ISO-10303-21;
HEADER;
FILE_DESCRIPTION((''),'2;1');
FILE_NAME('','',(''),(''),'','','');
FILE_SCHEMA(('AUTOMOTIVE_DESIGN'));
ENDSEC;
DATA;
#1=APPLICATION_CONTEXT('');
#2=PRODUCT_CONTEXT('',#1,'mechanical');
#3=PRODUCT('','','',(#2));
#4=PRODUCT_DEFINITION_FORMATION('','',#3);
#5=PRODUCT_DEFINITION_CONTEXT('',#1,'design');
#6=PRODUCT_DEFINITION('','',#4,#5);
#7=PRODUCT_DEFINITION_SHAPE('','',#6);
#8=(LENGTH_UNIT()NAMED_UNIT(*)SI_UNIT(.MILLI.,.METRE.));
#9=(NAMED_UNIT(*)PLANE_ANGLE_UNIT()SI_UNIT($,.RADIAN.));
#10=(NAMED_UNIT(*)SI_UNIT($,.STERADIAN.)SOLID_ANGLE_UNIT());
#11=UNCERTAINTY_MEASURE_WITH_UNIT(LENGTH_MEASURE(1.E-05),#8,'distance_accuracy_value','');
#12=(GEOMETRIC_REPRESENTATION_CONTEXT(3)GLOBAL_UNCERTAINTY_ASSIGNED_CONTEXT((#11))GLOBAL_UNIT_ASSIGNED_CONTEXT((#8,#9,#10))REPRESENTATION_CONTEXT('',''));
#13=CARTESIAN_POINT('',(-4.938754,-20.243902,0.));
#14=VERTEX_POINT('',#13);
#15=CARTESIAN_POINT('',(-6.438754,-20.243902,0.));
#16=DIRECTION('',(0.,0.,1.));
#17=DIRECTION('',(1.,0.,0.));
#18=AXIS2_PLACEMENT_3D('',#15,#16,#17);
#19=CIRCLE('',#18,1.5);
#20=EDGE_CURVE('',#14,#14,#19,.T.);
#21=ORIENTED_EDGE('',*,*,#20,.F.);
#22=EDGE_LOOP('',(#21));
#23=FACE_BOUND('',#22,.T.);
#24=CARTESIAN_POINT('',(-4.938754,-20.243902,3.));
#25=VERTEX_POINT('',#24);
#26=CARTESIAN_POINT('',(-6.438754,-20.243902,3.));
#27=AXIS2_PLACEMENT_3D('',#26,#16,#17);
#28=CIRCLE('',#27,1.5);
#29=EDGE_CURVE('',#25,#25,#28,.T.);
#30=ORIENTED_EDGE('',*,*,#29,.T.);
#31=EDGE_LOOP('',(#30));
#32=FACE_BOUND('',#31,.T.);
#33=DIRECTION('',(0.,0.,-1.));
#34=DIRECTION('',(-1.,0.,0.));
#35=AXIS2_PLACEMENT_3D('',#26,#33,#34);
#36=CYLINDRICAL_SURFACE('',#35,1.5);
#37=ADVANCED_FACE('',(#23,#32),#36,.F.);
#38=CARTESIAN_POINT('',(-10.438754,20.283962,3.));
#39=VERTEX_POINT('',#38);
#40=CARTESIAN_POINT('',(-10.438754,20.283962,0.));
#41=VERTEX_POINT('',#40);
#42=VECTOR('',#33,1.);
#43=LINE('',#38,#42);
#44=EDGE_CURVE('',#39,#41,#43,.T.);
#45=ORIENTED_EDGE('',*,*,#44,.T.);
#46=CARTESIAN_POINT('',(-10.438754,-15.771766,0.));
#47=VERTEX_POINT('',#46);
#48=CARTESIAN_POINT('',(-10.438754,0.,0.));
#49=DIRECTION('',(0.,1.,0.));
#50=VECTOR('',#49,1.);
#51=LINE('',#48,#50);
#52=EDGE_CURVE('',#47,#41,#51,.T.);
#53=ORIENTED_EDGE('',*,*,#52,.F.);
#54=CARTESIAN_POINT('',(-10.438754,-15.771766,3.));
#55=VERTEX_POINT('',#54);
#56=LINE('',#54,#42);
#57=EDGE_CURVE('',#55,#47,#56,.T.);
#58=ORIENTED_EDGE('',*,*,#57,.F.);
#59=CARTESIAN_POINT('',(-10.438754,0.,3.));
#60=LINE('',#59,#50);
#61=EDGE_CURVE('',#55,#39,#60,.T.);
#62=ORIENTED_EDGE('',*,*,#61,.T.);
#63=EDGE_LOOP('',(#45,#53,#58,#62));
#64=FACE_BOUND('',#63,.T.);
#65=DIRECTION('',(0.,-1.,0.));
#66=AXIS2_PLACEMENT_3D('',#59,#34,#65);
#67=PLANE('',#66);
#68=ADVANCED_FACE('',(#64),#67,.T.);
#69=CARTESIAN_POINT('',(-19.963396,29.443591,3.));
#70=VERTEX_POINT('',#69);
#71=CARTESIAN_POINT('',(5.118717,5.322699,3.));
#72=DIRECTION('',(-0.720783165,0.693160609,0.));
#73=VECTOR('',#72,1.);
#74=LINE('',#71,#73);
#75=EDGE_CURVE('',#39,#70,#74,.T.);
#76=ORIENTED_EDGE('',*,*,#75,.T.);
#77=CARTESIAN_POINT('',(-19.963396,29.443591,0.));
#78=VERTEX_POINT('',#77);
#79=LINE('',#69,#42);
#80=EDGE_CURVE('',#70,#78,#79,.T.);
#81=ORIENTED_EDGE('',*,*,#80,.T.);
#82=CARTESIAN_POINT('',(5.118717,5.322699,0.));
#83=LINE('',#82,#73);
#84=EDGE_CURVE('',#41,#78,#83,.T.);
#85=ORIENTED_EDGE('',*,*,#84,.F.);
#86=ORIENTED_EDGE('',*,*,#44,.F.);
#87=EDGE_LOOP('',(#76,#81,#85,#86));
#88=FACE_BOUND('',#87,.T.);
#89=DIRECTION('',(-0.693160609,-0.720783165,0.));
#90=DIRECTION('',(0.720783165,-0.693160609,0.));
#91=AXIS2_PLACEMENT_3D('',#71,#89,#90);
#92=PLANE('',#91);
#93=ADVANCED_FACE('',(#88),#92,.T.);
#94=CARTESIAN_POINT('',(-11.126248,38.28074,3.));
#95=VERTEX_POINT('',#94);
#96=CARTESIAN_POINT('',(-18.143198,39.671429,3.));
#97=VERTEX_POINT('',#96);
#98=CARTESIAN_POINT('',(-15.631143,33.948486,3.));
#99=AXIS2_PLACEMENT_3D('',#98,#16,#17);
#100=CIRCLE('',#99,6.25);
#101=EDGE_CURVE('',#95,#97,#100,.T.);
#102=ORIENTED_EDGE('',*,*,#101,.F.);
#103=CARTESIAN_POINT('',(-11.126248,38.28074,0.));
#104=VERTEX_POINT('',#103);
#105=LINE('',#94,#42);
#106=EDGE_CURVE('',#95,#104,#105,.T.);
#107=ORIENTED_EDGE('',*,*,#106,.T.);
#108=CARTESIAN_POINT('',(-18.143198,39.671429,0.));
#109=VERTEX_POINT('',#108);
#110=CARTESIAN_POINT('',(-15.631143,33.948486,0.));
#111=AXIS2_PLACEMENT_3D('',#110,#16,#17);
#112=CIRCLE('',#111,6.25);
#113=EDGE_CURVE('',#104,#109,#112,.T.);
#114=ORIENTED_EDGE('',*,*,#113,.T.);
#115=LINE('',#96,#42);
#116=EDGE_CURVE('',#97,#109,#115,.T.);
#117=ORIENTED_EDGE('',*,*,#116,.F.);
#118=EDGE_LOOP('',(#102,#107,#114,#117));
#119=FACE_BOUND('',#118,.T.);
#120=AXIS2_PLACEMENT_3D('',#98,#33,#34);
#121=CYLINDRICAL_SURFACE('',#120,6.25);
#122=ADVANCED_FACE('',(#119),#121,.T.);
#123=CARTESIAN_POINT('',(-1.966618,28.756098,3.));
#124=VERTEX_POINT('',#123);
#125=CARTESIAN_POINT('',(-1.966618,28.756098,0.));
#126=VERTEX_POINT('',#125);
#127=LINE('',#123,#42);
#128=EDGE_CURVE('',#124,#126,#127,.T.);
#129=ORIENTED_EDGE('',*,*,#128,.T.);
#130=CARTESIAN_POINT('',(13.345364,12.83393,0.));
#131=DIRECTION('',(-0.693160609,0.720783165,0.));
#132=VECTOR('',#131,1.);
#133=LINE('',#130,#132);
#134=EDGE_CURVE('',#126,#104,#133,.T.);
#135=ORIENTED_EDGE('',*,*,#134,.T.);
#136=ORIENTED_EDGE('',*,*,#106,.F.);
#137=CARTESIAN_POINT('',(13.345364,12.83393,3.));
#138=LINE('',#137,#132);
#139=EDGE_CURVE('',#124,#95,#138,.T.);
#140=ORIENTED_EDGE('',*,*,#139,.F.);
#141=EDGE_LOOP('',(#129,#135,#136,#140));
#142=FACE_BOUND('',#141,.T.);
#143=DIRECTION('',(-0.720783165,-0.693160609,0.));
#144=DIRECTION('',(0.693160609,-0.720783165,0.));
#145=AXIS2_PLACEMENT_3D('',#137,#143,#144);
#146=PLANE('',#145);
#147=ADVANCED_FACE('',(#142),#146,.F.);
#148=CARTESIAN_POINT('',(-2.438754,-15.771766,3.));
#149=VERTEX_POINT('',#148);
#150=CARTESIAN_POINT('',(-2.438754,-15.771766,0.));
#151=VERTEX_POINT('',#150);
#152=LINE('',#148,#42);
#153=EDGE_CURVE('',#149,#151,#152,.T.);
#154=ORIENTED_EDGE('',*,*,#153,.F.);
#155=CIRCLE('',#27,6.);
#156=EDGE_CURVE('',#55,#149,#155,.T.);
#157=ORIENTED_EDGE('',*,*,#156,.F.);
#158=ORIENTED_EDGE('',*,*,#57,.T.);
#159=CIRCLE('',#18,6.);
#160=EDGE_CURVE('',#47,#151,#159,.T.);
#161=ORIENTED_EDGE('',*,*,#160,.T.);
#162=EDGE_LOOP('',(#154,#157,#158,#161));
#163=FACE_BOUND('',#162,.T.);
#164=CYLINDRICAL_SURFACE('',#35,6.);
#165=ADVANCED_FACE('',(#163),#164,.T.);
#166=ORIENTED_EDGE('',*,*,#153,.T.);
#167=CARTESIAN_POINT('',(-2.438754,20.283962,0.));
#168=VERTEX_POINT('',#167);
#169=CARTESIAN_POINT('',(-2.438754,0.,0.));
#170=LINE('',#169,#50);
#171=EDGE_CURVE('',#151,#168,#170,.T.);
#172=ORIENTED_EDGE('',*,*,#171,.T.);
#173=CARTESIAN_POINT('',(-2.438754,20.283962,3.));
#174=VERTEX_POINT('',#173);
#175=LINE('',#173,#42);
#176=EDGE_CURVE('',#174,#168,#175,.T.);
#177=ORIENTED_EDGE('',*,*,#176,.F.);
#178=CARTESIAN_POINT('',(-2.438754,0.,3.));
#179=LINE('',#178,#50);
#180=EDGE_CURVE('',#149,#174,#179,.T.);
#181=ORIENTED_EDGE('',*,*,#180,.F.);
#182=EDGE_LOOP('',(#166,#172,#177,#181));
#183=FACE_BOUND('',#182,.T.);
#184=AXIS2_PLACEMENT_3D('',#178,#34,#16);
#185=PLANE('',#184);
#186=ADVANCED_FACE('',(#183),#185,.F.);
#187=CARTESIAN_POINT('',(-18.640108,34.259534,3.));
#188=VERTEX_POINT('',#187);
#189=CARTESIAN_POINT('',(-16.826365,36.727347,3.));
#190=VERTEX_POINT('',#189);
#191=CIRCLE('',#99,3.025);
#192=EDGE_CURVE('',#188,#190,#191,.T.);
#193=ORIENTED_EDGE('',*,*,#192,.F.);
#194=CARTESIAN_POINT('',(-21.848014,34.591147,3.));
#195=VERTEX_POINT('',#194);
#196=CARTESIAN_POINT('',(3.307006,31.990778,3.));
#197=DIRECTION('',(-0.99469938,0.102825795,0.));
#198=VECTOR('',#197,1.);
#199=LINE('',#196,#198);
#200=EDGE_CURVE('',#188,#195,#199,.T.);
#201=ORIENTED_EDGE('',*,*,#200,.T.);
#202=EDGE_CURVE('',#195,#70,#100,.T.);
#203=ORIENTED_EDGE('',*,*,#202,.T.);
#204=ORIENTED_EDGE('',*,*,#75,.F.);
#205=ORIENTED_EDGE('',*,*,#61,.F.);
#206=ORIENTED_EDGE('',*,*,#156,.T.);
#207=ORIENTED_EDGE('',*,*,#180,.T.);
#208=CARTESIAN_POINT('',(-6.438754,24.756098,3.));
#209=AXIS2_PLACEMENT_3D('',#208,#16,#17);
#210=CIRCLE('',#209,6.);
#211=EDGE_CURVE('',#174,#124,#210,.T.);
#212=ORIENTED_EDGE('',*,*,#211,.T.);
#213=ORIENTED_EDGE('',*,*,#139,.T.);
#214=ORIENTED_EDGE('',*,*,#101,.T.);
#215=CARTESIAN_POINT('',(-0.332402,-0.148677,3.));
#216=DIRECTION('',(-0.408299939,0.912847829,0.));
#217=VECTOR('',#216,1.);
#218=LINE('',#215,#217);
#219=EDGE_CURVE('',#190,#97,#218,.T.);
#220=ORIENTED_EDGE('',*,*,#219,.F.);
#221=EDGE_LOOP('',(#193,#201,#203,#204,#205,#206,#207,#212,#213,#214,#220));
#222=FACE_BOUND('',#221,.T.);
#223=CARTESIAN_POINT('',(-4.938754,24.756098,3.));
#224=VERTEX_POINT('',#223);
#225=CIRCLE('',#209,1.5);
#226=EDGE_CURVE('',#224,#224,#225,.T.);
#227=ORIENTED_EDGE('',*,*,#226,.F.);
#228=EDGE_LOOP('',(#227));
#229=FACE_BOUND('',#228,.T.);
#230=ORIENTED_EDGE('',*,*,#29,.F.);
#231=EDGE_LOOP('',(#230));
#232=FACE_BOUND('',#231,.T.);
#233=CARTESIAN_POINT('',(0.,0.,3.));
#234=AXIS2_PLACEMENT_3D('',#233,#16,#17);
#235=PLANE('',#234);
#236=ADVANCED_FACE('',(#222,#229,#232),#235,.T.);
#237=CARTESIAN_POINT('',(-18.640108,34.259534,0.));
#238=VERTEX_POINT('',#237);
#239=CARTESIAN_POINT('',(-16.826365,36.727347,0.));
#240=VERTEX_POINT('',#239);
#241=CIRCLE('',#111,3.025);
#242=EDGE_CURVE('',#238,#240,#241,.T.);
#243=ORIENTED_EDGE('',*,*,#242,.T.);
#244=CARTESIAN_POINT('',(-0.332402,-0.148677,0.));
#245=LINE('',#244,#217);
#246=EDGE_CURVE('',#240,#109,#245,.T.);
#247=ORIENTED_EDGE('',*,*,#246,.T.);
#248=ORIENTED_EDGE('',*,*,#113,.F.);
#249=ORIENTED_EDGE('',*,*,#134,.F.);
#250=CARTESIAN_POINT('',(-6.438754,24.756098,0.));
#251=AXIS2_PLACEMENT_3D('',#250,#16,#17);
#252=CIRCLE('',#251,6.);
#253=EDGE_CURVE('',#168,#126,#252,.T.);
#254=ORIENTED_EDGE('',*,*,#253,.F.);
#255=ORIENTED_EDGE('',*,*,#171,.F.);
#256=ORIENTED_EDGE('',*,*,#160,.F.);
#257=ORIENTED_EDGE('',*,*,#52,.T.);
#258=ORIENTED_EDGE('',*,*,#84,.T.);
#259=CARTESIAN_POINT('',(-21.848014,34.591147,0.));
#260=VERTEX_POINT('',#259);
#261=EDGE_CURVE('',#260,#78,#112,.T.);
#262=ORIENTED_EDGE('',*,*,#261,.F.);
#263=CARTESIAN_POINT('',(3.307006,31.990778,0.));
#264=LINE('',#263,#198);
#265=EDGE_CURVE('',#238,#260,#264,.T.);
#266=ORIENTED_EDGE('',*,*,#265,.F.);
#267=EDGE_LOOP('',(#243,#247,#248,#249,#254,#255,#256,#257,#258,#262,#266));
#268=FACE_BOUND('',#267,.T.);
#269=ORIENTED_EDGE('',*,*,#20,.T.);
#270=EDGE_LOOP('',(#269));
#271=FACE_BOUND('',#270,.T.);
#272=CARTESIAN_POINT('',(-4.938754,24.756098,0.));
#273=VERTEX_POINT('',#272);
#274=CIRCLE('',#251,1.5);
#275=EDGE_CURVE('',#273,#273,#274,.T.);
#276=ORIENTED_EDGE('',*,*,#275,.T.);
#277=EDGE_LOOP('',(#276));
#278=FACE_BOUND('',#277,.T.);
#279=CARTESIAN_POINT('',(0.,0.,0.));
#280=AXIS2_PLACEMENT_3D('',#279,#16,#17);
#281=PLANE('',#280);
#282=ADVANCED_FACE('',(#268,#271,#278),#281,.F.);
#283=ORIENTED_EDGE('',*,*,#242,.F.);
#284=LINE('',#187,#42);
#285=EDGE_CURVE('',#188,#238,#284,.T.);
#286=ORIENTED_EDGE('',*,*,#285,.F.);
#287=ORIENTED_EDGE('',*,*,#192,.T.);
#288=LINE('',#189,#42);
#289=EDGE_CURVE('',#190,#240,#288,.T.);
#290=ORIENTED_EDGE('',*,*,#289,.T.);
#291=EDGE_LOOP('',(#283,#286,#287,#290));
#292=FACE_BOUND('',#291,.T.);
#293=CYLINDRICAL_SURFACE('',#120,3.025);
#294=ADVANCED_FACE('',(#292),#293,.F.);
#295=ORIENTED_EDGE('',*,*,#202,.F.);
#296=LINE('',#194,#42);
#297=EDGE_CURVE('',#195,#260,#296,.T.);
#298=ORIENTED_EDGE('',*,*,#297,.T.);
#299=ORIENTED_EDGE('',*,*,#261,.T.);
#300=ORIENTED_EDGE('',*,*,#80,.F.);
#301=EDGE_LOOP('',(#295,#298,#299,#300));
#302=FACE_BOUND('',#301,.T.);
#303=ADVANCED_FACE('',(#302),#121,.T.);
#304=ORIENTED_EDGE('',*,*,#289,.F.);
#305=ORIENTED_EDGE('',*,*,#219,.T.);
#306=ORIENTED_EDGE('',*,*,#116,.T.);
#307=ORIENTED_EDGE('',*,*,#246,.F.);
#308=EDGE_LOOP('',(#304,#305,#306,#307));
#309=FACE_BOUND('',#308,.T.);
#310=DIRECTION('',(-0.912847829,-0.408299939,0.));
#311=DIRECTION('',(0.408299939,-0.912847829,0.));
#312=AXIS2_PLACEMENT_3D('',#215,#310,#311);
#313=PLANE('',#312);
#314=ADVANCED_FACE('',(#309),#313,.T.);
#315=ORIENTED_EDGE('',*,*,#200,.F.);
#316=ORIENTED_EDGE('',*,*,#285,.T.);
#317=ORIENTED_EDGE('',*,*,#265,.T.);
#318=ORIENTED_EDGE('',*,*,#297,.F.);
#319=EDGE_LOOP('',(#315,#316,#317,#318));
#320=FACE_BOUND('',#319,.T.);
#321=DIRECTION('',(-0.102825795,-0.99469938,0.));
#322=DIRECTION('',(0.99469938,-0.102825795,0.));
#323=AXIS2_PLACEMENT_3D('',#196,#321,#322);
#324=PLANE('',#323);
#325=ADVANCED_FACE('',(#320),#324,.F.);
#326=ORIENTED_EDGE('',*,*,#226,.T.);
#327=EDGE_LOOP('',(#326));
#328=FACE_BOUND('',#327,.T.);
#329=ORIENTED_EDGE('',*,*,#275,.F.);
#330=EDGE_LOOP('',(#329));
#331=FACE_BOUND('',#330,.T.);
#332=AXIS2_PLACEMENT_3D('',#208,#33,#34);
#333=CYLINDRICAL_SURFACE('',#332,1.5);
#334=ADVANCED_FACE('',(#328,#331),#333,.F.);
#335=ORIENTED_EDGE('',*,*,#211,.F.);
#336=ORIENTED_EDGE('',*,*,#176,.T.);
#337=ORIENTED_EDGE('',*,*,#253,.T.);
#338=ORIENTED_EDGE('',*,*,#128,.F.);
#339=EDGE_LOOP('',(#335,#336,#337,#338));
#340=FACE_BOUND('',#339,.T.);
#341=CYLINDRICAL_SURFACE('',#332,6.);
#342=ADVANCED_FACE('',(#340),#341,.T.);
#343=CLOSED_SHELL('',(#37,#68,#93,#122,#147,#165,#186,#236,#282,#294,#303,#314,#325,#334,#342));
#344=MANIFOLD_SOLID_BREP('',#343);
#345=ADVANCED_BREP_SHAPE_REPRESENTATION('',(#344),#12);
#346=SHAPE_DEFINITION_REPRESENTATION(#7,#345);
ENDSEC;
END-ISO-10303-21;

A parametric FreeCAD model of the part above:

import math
import FreeCAD as App
import Part
import Sketcher
from FreeCAD import Vector

doc = App.newDocument("Part")
body = doc.addObject("PartDesign::Body", "Body")

# Sketch on XY plane
sketch1 = body.newObject("Sketcher::SketchObject", "Sketch")
sketch1.AttachmentSupport = (doc.getObject("XY_Plane"), [""])
sketch1.MapMode = "FlatFace"
sketch1.addGeometry([
    Part.LineSegment(Vector(-10.44, 20.28, 0), Vector(-10.44, -15.77, 0)),  # 0
    Part.ArcOfCircle(Part.Circle(Vector(-6.44, -20.24, 0), Vector(0, 0, 1), 6), math.radians(132), math.radians(408)),  # 1
    Part.LineSegment(Vector(-2.44, -15.77, 0), Vector(-2.44, 20.28, 0)),  # 2
    Part.ArcOfCircle(Part.Circle(Vector(-6.44, 24.76, 0), Vector(0, 0, 1), 6), math.radians(-48), math.radians(42)),  # 3
    Part.LineSegment(Vector(-1.97, 28.76, 0), Vector(-2.27, 29.07, 0)),  # 4
    Part.LineSegment(Vector(-2.27, 29.07, 0), Vector(-11.13, 38.28, 0)),  # 5
    Part.ArcOfCircle(Part.Circle(Vector(-15.63, 33.95, 0), Vector(0, 0, 1), 6.25), math.radians(44), math.radians(114)),  # 6
    Part.LineSegment(Vector(-18.14, 39.67, 0), Vector(-16.83, 36.73, 0)),  # 7
    Part.ArcOfCircle(Part.Circle(Vector(-15.63, 33.95, 0), Vector(0, 0, 1), 3.02), math.radians(0), math.radians(113)),  # 8
    Part.ArcOfCircle(Part.Circle(Vector(-15.63, 33.95, 0), Vector(0, 0, 1), 3.02), math.radians(174), math.radians(360)),  # 9
    Part.LineSegment(Vector(-18.64, 34.26, 0), Vector(-21.85, 34.59, 0)),  # 10
    Part.ArcOfCircle(Part.Circle(Vector(-15.63, 33.95, 0), Vector(0, 0, 1), 6.25), math.radians(174), math.radians(226)),  # 11
    Part.LineSegment(Vector(-19.96, 29.44, 0), Vector(-10.75, 20.58, 0)),  # 12
    Part.LineSegment(Vector(-10.75, 20.58, 0), Vector(-10.44, 20.28, 0)),  # 13
    Part.Circle(Vector(-6.44, -20.24, 0), Vector(0, 0, 1), 1.5),  # 14
    Part.Circle(Vector(-6.44, 24.76, 0), Vector(0, 0, 1), 1.5),  # 15
], False)
sketch1.addConstraint([
    Sketcher.Constraint("Coincident", 0, 2, 1, 1),
    Sketcher.Constraint("Coincident", 1, 2, 2, 1),
    Sketcher.Constraint("Coincident", 2, 2, 3, 1),
    Sketcher.Constraint("Coincident", 3, 2, 4, 1),
    Sketcher.Constraint("Coincident", 4, 2, 5, 1),
    Sketcher.Constraint("Tangent", 5, 2, 6, 1),
    Sketcher.Constraint("Coincident", 6, 2, 7, 1),
    Sketcher.Constraint("Coincident", 7, 2, 8, 2),
    Sketcher.Constraint("Tangent", 8, 1, 9, 2),
    Sketcher.Constraint("Coincident", 9, 1, 10, 1),
    Sketcher.Constraint("Coincident", 10, 2, 11, 1),
    Sketcher.Constraint("Tangent", 11, 2, 12, 1),
    Sketcher.Constraint("Coincident", 12, 2, 13, 1),
    Sketcher.Constraint("Coincident", 13, 2, 0, 1),
    Sketcher.Constraint("Vertical", 0),
    Sketcher.Constraint("Vertical", 2),
    Sketcher.Constraint("Coincident", 8, 3, 6, 3),
    Sketcher.Constraint("Coincident", 11, 3, 6, 3),
    Sketcher.Constraint("Coincident", 14, 3, 1, 3),
    Sketcher.Constraint("Coincident", 15, 3, 3, 3),
    Sketcher.Constraint("Equal", 1, 3),
    Sketcher.Constraint("Equal", 8, 9),
    Sketcher.Constraint("Equal", 6, 11),
    Sketcher.Constraint("Equal", 14, 15),
    Sketcher.Constraint("Parallel", 4, 5),
    Sketcher.Constraint("Parallel", 12, 13),
    Sketcher.Constraint("Horizontal", 0, 2, 1, 2),
    Sketcher.Constraint("Horizontal", 11, 3, 8, 1),
    Sketcher.Constraint("Horizontal", 2, 2, 13, 2),
    Sketcher.Constraint("Vertical", 1, 3, 3, 3),
    Sketcher.Constraint("Equal", 5, 12),
    Sketcher.Constraint("Equal", 4, 13),
    Sketcher.Constraint("Diameter", 14, 3.0),
    Sketcher.Constraint("Radius", 1, 6.0),
    Sketcher.Constraint("Radius", 6, 6.25),
    Sketcher.Constraint("Radius", 8, 3.025),
    Sketcher.Constraint("DistanceY", 1, 3, 3, 3, 45.0),
    Sketcher.Constraint("DistanceX", 0, 2, 1, 3, 4.0),
    Sketcher.Constraint("DistanceY", 3, 3, 3, 2, 4.0),
    Sketcher.Constraint("DistanceX", 6, 2, -1, 1, 18.143198),
    Sketcher.Constraint("DistanceY", 10, 2, 7, 2, 2.1362),
    Sketcher.Constraint("Distance", 4, 0.433552),
    Sketcher.Constraint("Distance", 7, 3.225162),
    Sketcher.Constraint("DistanceY", -1, 1, 2, 2, 20.283962),
    Sketcher.Constraint("DistanceX", 3, 2, -1, 1, 1.966618),
    Sketcher.Constraint("DistanceY", -1, 1, 5, 2, 38.28074),
    Sketcher.Constraint("DistanceX", 9, 1, -1, 1, 18.640108),
])
pad1 = body.newObject("PartDesign::Pad", "Pad")
pad1.Profile = sketch1
pad1.Length = 3

doc.recompute()
